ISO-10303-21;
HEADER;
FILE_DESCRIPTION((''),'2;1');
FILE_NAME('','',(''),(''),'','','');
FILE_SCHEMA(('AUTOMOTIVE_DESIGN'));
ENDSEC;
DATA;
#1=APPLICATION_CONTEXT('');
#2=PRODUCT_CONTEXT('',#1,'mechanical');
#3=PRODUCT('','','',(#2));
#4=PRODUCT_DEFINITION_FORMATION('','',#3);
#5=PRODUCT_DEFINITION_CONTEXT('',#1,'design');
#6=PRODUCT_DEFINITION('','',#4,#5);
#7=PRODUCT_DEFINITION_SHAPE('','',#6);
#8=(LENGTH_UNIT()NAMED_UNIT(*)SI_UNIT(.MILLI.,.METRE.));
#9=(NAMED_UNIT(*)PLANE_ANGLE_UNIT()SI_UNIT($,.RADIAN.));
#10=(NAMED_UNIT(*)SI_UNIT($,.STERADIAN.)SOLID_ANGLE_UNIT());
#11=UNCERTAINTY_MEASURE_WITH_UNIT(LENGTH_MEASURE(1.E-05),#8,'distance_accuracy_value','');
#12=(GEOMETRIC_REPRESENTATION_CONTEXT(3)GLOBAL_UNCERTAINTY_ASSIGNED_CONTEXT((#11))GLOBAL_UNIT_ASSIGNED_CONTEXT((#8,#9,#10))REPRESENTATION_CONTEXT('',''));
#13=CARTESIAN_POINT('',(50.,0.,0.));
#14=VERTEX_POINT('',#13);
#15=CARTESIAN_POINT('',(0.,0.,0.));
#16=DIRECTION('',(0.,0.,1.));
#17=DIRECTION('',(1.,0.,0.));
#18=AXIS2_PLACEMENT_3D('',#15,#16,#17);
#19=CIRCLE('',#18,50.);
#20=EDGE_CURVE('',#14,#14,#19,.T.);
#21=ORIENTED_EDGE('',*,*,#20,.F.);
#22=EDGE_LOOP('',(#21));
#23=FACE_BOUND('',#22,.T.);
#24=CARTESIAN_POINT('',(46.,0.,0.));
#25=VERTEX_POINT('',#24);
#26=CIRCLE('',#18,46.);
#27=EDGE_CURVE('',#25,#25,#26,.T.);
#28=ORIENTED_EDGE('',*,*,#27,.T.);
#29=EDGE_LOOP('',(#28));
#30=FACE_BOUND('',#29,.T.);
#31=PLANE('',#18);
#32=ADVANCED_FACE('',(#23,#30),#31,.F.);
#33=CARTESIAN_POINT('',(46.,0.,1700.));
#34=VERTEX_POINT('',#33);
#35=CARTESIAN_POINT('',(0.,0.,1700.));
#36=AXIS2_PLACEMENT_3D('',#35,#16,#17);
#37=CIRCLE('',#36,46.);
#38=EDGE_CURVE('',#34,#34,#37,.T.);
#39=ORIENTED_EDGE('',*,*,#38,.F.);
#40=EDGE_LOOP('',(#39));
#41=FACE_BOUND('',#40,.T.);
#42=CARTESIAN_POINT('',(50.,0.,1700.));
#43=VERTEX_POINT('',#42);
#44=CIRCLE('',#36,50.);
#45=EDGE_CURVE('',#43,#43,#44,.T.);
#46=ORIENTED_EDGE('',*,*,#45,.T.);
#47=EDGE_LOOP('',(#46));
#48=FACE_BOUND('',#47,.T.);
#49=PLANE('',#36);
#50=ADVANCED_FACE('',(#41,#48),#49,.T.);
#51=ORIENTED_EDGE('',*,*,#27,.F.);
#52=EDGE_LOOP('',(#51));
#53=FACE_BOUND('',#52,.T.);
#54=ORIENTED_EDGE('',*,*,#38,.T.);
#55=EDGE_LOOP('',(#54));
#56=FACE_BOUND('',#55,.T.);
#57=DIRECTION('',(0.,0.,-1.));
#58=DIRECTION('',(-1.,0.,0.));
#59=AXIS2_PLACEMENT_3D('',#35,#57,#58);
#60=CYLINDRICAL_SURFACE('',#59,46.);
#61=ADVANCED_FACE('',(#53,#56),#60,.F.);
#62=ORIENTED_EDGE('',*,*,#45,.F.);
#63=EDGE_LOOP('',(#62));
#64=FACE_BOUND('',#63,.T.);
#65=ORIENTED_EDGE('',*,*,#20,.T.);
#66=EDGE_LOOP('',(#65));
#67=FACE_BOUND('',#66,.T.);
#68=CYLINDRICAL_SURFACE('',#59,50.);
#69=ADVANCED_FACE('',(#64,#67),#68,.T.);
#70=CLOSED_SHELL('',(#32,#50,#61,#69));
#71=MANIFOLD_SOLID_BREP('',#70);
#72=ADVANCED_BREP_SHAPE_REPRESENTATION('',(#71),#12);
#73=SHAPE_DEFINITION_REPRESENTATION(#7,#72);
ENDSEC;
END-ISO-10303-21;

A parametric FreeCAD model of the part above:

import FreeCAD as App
import Part
import Sketcher

doc = App.newDocument("Part")
params = doc.addObject("Spreadsheet::Sheet", "Params")
for row, (alias, value) in enumerate([
    ("sketch1_diameter", "100 mm"),
    ("sketch1_diameter2", "92 mm"),
    ("pad1_length", "1700 mm"),
], start=1):
    params.set(f"A{row}", alias)
    params.set(f"B{row}", "=" + value)
    params.setAlias(f"B{row}", alias)

body = doc.addObject("PartDesign::Body", "Body")

# Sketch on XY plane
sketch1 = body.newObject("Sketcher::SketchObject", "Sketch")
sketch1.AttachmentSupport = (doc.getObject("XY_Plane"), [""])
sketch1.MapMode = "FlatFace"
sketch1.addGeometry([
    Part.Circle(App.Vector(0, 0, 0), App.Vector(0, 0, 1), 50),
    Part.Circle(App.Vector(0, 0, 0), App.Vector(0, 0, 1), 46),
], False)
sketch1.addConstraint([
    Sketcher.Constraint("Coincident", 0, 3, -1, 1),
    Sketcher.Constraint("Coincident", 1, 3, -1, 1),
    Sketcher.Constraint("Diameter", 0, 100.0),
    Sketcher.Constraint("Diameter", 1, 92.0),
])
sketch1.setExpression("Constraints[2]", "Params.sketch1_diameter")
sketch1.setExpression("Constraints[3]", "Params.sketch1_diameter2")
pad1 = body.newObject("PartDesign::Pad", "Pad")
pad1.Profile = sketch1
pad1.setExpression("Length", "Params.pad1_length")

doc.recompute()
